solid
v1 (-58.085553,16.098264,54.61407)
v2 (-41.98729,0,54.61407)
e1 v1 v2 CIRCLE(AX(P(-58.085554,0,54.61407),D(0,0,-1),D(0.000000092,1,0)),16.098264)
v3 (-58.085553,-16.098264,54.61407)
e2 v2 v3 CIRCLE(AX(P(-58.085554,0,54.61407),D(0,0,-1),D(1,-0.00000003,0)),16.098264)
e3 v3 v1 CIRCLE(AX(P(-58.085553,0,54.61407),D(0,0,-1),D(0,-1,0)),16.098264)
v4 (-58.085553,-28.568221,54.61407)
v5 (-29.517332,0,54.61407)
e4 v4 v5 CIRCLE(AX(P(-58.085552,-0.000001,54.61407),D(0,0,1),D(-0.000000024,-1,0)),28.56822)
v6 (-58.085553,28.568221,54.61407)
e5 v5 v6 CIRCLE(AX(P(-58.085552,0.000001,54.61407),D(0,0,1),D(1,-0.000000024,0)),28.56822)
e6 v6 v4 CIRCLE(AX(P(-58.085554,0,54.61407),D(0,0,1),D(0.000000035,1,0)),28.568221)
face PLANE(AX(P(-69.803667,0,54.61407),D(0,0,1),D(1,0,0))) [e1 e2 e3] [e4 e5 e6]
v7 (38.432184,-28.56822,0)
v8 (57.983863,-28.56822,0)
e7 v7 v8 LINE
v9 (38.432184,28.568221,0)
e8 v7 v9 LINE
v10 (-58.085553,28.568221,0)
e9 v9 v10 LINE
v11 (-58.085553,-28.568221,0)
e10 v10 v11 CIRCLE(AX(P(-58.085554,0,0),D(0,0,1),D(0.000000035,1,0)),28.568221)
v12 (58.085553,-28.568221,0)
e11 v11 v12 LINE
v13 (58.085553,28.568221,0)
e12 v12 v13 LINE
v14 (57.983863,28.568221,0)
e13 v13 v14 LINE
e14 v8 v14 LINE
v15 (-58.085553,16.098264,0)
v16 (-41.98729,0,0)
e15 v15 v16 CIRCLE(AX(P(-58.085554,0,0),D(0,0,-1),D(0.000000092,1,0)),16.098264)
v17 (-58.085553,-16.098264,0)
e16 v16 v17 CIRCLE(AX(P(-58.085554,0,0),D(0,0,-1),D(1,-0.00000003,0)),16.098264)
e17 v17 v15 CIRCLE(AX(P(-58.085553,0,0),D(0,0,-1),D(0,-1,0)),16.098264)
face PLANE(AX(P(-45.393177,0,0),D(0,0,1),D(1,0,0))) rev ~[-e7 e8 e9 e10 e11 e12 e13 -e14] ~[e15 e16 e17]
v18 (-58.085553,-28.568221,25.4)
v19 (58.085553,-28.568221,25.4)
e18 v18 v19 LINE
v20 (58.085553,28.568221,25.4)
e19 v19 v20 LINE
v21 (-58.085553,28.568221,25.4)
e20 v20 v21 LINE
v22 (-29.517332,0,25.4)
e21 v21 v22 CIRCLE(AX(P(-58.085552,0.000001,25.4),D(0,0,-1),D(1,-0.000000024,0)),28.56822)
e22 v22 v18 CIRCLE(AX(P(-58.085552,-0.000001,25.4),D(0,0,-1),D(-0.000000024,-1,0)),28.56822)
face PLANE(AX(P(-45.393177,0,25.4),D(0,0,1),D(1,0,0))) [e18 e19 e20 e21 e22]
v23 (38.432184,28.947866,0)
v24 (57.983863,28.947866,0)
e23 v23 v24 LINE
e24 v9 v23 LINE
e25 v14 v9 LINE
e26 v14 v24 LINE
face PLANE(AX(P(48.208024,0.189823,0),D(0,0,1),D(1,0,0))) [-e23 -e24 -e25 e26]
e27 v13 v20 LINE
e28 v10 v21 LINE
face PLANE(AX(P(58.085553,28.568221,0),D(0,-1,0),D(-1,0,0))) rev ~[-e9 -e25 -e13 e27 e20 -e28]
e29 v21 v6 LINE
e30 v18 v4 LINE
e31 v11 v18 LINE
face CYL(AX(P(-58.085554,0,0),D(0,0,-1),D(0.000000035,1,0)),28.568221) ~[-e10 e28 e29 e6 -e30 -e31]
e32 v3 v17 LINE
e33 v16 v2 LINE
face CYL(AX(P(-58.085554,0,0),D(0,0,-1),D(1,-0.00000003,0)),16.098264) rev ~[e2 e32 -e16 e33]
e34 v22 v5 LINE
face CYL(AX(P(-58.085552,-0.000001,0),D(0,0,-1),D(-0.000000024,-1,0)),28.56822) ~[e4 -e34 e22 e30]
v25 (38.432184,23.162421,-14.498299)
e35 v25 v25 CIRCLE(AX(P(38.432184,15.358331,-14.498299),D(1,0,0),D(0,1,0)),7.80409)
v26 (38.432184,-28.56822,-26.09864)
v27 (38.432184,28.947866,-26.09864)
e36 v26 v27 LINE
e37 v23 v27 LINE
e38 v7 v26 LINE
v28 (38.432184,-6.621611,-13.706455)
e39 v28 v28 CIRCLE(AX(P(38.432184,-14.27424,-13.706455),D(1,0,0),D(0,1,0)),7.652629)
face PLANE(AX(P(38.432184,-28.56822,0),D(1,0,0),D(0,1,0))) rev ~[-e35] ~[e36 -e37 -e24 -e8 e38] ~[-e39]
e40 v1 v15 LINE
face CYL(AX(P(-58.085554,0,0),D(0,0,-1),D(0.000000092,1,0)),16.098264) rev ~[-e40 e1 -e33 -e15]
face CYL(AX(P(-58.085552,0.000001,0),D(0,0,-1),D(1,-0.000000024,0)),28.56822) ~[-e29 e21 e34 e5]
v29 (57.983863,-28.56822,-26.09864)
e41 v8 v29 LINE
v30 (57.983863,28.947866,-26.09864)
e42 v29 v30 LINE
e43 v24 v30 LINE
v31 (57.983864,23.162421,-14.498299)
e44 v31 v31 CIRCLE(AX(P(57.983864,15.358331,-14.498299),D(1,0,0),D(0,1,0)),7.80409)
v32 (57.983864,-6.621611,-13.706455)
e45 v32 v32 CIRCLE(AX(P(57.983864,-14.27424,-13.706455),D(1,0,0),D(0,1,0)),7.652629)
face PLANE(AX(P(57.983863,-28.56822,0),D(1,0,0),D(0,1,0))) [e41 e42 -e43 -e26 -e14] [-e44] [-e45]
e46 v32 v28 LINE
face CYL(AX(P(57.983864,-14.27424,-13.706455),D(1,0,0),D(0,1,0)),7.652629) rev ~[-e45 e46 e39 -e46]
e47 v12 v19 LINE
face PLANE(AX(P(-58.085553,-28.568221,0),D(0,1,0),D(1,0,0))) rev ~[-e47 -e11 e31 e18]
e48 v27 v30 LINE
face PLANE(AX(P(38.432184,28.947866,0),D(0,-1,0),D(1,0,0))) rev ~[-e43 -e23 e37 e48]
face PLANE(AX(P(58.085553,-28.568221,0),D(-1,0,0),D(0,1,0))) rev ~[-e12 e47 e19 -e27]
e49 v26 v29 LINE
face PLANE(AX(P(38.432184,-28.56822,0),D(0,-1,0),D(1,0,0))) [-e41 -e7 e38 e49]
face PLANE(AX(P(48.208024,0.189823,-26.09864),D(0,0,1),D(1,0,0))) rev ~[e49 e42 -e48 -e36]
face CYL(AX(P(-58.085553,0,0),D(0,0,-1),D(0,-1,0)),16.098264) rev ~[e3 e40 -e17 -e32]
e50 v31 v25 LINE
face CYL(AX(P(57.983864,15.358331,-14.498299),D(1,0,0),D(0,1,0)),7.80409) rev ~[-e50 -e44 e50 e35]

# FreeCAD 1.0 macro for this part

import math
import FreeCAD as App
import Part
import Sketcher
from FreeCAD import Vector
Q = App.Units.Quantity


def add_polygon(sketch, points):
    """Adds a closed chain of lines whose ends are joined by coincident constraints."""
    first, n = sketch.GeometryCount, len(points)
    for a, b in zip(points, points[1:] + points[:1]):
        sketch.addGeometry(Part.LineSegment(App.Vector(*a, 0), App.Vector(*b, 0)), False)
    for i in range(n):
        sketch.addConstraint(Sketcher.Constraint("Coincident", first + i, 2, first + (i + 1) % n, 1))

doc = App.newDocument("Part")
body = doc.addObject("PartDesign::Body", "Body")

# Sketch on XY plane
sketch1 = body.newObject("Sketcher::SketchObject", "Sketch")
sketch1.AttachmentSupport = (doc.getObject("XY_Plane"), [""])
sketch1.MapMode = "FlatFace"
sketch1.addGeometry(Part.ArcOfCircle(Part.Circle(Vector(-58, 0, 0), Vector(0, 0, 1), 29), math.radians(90), math.radians(270)), False)
sketch1.addGeometry(Part.LineSegment(Vector(-58, -29, 0), Vector(58, -29, 0)), False)
sketch1.addGeometry(Part.LineSegment(Vector(58, -29, 0), Vector(58, 29, 0)), False)
sketch1.addGeometry(Part.LineSegment(Vector(58, 29, 0), Vector(-58, 29, 0)), False)
sketch1.addGeometry(Part.ArcOfCircle(Part.Circle(Vector(-58, 0, 0), Vector(0, 0, 1), 16), math.radians(0), math.radians(90)), False)
sketch1.addGeometry(Part.ArcOfCircle(Part.Circle(Vector(-58, 0, 0), Vector(0, 0, 1), 16), math.radians(-90), math.radians(0)), False)
sketch1.addGeometry(Part.ArcOfCircle(Part.Circle(Vector(-58, 0, 0), Vector(0, 0, 1), 16), math.radians(90), math.radians(270)), False)
sketch1.addConstraint(Sketcher.Constraint("Tangent", 0, 2, 1, 1))
sketch1.addConstraint(Sketcher.Constraint("Coincident", 1, 2, 2, 1))
sketch1.addConstraint(Sketcher.Constraint("Coincident", 2, 2, 3, 1))
sketch1.addConstraint(Sketcher.Constraint("Tangent", 3, 2, 0, 1))
sketch1.addConstraint(Sketcher.Constraint("Tangent", 4, 1, 5, 2))
sketch1.addConstraint(Sketcher.Constraint("Tangent", 5, 1, 6, 2))
sketch1.addConstraint(Sketcher.Constraint("Tangent", 6, 1, 4, 2))
sketch1.addConstraint(Sketcher.Constraint("Horizontal", 1))
sketch1.addConstraint(Sketcher.Constraint("Vertical", 2))
sketch1.addConstraint(Sketcher.Constraint("Horizontal", 3))
sketch1.addConstraint(Sketcher.Constraint("Coincident", 4, 3, 0, 3))
sketch1.addConstraint(Sketcher.Constraint("Symmetric", 0, 2, 2, 2, -1, 1))
sketch1.addConstraint(Sketcher.Constraint("PointOnObject", 4, 1, -1))
sketch1.addConstraint(Sketcher.Constraint("Vertical", 3, 2, 5, 1))
sketch1.addConstraint(Sketcher.Constraint("Vertical", 5, 1, 6, 1))
sketch1.addConstraint(Sketcher.Constraint("Radius", 0, 28.568221))
sketch1.addConstraint(Sketcher.Constraint("Radius", 4, 16.098264))
sketch1.addConstraint(Sketcher.Constraint("DistanceX", 1, 1, 1, 2, 116.171106))
pad1 = body.newObject("PartDesign::Pad", "Pad")
pad1.Profile = sketch1
pad1.Length = Q("1 in")

# Sketch on XY plane
sketch2 = body.newObject("Sketcher::SketchObject", "Sketch001")
sketch2.AttachmentSupport = (doc.getObject("XY_Plane"), [""])
sketch2.MapMode = "FlatFace"
sketch2.addGeometry(Part.ArcOfCircle(Part.Circle(Vector(-58, 0, 0), Vector(0, 0, 1), 29), math.radians(90), math.radians(270)), False)
sketch2.addGeometry(Part.ArcOfCircle(Part.Circle(Vector(-58, 0, 0), Vector(0, 0, 1), 29), math.radians(-90), math.radians(0)), False)
sketch2.addGeometry(Part.ArcOfCircle(Part.Circle(Vector(-58, 0, 0), Vector(0, 0, 1), 29), math.radians(0), math.radians(90)), False)
sketch2.addGeometry(Part.ArcOfCircle(Part.Circle(Vector(-58, 0, 0), Vector(0, 0, 1), 16), math.radians(90), math.radians(270)), False)
sketch2.addGeometry(Part.ArcOfCircle(Part.Circle(Vector(-58, 0, 0), Vector(0, 0, 1), 16), math.radians(0), math.radians(90)), False)
sketch2.addGeometry(Part.ArcOfCircle(Part.Circle(Vector(-58, 0, 0), Vector(0, 0, 1), 16), math.radians(-90), math.radians(0)), False)
sketch2.addConstraint(Sketcher.Constraint("Tangent", 0, 2, 1, 1))
sketch2.addConstraint(Sketcher.Constraint("Tangent", 1, 2, 2, 1))
sketch2.addConstraint(Sketcher.Constraint("Tangent", 2, 2, 0, 1))
sketch2.addConstraint(Sketcher.Constraint("Tangent", 3, 1, 4, 2))
sketch2.addConstraint(Sketcher.Constraint("Tangent", 4, 1, 5, 2))
sketch2.addConstraint(Sketcher.Constraint("Tangent", 5, 1, 3, 2))
sketch2.addConstraint(Sketcher.Constraint("Coincident", 3, 3, 0, 3))
sketch2.addConstraint(Sketcher.Constraint("Symmetric", 0, 2, 2, 2, -1))
sketch2.addConstraint(Sketcher.Constraint("PointOnObject", 1, 2, -1))
sketch2.addConstraint(Sketcher.Constraint("PointOnObject", 4, 1, -1))
sketch2.addConstraint(Sketcher.Constraint("Vertical", 5, 3, 0, 2))
sketch2.addConstraint(Sketcher.Constraint("Vertical", 2, 2, 3, 1))
sketch2.addConstraint(Sketcher.Constraint("Vertical", 3, 1, 5, 1))
sketch2.addConstraint(Sketcher.Constraint("Radius", 0, 28.568221))
sketch2.addConstraint(Sketcher.Constraint("Radius", 3, 16.098264))
sketch2.addConstraint(Sketcher.Constraint("DistanceX", 4, 1, -1, 1, 41.98729))
pad2 = body.newObject("PartDesign::Pad", "Pad001")
pad2.Profile = sketch2
pad2.Length = 54.61407

# Sketch on XY plane
sketch3 = body.newObject("Sketcher::SketchObject", "Sketch002")
sketch3.AttachmentSupport = (doc.getObject("XY_Plane"), [""])
sketch3.MapMode = "FlatFace"
add_polygon(sketch3, [(38, 29), (38, -29), (58, -29), (58, 29)])  # lines 0-3
sketch3.addConstraint(Sketcher.Constraint("Vertical", 0))
sketch3.addConstraint(Sketcher.Constraint("Horizontal", 1))
sketch3.addConstraint(Sketcher.Constraint("Vertical", 2))
sketch3.addConstraint(Sketcher.Constraint("Horizontal", 3))
sketch3.addConstraint(Sketcher.Constraint("DistanceX", 1, 1, 1, 2, 19.551679))
sketch3.addConstraint(Sketcher.Constraint("DistanceY", 0, 2, 0, 1, 57.516087))
sketch3.addConstraint(Sketcher.Constraint("DistanceY", 0, 2, -1, 1, 28.56822))
sketch3.addConstraint(Sketcher.Constraint("DistanceX", -1, 1, 0, 2, 38.432184))
pad3 = body.newObject("PartDesign::Pad", "Pad002")
pad3.Profile = sketch3
pad3.Length = 26.09864
pad3.Reversed = True

# Sketch on YZ plane
sketch4 = body.newObject("Sketcher::SketchObject", "Sketch003")
sketch4.AttachmentSupport = (doc.getObject("YZ_Plane"), [""])
sketch4.MapMode = "FlatFace"
sketch4.AttachmentOffset = App.Placement(Vector(0, 0, 57.983864), App.Rotation())
sketch4.addGeometry(Part.Circle(Vector(-14, -14, 0), Vector(0, 0, 1), 8), False)
sketch4.addGeometry(Part.Circle(Vector(15, -14, 0), Vector(0, 0, 1), 8), False)
sketch4.addConstraint(Sketcher.Constraint("Diameter", 1, 15.60818))
sketch4.addConstraint(Sketcher.Constraint("Diameter", 0, 15.305258))
sketch4.addConstraint(Sketcher.Constraint("DistanceY", 1, 3, -1, 1, 14.498299))
sketch4.addConstraint(Sketcher.Constraint("DistanceX", 0, 3, -1, 1, 14.27424))
sketch4.addConstraint(Sketcher.Constraint("DistanceX", -1, 1, 1, 3, 15.358331))
sketch4.addConstraint(Sketcher.Constraint("DistanceY", 0, 3, -1, 1, 13.706455))
pocket1 = body.newObject("PartDesign::Pocket", "Pocket")
pocket1.Profile = sketch4
pocket1.Length = Q("1 in")

doc.recompute()
